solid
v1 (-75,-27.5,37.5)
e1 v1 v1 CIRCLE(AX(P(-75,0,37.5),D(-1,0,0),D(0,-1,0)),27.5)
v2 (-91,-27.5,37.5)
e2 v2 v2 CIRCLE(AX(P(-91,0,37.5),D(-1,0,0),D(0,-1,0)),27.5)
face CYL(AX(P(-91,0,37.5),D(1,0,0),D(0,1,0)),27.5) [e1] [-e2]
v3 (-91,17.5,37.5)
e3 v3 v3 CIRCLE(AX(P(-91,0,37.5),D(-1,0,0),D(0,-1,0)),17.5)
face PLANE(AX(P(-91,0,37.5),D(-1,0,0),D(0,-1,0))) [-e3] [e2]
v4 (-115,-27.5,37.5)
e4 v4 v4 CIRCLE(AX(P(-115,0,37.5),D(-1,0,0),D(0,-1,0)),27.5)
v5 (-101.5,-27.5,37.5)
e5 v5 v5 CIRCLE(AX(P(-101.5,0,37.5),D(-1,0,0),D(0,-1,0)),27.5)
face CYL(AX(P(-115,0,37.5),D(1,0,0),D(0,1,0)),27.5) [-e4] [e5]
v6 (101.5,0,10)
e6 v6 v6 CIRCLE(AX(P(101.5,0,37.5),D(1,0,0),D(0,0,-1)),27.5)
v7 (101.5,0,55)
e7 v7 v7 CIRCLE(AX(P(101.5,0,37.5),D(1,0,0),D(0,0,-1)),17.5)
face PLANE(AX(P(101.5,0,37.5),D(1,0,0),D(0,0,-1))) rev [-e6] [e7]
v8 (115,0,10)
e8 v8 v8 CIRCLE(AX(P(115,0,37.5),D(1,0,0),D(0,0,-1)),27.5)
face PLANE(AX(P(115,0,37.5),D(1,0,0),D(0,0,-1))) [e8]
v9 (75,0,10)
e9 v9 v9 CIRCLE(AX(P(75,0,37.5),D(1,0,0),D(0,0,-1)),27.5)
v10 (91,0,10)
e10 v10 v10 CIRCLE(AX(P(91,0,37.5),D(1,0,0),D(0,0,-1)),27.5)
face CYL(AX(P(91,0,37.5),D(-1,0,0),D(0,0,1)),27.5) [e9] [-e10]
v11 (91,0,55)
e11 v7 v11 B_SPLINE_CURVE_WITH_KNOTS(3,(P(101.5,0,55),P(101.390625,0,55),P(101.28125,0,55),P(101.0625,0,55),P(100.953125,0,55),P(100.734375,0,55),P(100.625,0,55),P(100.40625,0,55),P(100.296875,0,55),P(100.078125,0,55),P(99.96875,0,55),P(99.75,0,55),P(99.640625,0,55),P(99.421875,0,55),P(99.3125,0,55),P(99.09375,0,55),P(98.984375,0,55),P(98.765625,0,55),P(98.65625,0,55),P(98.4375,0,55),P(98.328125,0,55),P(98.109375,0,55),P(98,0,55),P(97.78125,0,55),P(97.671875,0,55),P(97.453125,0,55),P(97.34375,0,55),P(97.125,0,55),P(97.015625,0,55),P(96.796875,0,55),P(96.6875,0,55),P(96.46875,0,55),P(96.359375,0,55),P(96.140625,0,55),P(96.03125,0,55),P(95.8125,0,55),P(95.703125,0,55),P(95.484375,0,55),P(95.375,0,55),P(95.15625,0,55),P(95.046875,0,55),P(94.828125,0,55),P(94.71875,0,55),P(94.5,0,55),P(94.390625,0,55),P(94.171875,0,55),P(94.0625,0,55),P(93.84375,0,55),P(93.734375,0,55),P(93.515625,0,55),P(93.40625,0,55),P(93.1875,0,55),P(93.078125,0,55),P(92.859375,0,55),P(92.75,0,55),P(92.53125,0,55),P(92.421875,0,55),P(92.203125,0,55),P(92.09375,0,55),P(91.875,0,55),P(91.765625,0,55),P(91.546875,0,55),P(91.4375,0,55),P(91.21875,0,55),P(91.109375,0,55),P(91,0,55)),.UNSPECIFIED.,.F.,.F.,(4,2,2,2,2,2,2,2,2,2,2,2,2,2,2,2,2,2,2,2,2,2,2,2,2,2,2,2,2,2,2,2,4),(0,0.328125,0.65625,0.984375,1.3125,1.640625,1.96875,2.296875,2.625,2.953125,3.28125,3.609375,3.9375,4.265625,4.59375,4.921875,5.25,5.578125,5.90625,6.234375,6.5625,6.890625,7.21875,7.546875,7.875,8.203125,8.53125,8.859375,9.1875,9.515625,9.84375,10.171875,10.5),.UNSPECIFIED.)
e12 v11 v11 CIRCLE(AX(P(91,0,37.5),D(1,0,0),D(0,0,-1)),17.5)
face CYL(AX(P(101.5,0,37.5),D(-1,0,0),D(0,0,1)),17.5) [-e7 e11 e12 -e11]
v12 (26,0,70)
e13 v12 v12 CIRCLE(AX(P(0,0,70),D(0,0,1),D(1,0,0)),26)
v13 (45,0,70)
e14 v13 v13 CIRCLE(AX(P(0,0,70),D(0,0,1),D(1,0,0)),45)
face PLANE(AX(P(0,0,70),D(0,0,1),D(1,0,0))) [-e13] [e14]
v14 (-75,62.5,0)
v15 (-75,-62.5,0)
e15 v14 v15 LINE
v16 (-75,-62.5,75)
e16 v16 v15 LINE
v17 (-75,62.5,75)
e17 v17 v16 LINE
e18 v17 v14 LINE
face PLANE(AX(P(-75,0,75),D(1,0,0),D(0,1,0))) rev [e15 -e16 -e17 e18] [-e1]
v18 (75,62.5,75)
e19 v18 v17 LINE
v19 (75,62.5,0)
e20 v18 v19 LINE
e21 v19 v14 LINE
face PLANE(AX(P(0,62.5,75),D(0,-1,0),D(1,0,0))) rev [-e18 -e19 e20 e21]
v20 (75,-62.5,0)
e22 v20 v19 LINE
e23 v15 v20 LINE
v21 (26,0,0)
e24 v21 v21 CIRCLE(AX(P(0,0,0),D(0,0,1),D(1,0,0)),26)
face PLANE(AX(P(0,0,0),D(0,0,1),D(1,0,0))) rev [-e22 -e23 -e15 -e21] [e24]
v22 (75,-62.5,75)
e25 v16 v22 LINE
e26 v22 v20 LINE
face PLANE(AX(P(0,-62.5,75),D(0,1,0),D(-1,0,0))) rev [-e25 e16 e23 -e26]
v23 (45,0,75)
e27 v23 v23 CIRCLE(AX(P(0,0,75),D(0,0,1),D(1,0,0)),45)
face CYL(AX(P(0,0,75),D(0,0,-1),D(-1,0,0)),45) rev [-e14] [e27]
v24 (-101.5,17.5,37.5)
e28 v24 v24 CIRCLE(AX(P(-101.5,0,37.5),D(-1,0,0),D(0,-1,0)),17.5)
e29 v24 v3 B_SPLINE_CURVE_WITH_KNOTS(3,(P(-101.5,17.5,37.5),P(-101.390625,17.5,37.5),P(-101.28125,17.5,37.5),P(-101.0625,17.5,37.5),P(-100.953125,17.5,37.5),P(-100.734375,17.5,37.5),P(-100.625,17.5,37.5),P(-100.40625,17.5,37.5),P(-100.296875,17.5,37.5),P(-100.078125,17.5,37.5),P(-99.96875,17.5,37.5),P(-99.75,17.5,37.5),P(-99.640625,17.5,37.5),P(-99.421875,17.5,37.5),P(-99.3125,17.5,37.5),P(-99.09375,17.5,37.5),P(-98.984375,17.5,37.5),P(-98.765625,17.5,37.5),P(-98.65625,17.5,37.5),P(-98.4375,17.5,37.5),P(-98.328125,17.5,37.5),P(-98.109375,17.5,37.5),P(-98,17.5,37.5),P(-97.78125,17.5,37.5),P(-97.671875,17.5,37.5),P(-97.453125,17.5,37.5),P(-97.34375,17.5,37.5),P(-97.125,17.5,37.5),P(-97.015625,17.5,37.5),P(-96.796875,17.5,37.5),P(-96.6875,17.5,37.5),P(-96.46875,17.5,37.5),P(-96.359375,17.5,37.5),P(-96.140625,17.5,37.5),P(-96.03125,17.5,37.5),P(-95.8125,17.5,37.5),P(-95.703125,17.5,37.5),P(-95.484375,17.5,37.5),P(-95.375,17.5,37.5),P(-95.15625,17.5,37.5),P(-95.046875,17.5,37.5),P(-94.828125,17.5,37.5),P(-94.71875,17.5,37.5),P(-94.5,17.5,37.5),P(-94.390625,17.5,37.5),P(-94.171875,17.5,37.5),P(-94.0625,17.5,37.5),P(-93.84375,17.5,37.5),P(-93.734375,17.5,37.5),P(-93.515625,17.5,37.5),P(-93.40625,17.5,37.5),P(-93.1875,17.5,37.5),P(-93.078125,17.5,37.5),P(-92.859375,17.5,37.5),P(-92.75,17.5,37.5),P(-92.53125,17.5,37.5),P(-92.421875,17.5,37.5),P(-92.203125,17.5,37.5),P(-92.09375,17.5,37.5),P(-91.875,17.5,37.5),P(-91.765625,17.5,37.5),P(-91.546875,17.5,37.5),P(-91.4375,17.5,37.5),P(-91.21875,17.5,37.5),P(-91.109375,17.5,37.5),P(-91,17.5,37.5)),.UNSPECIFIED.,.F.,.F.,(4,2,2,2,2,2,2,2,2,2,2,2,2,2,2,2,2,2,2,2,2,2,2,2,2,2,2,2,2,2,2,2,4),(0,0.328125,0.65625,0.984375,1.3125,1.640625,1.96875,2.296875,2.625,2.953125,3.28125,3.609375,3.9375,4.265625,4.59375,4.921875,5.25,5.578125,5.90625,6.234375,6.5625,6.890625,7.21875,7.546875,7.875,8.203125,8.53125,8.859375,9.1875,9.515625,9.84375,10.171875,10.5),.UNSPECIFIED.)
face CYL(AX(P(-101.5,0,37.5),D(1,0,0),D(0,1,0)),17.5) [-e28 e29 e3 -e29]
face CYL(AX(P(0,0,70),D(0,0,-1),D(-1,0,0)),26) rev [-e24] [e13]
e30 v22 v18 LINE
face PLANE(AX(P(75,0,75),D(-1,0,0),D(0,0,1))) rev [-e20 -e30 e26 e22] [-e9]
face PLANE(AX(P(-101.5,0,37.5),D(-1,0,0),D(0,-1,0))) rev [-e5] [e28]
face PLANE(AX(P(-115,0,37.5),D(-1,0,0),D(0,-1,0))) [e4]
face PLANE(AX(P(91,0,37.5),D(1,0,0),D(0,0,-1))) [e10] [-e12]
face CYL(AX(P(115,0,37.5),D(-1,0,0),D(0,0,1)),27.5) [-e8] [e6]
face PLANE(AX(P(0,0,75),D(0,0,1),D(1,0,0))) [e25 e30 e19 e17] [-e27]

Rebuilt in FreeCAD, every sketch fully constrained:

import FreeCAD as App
import Part
import Sketcher

V = App.Vector

doc = App.newDocument("Part")
body = doc.addObject("PartDesign::Body", "Body")

sketch1 = body.newObject("Sketcher::SketchObject", "Sketch")
sketch1.AttachmentSupport = (doc.getObject("XY_Plane"), [""])
sketch1.MapMode = "FlatFace"
sketch1.addGeometry([
    Part.LineSegment(V(-75, 62, 0), V(-75, -62, 0)),
    Part.LineSegment(V(-75, -62, 0), V(75, -62, 0)),
    Part.LineSegment(V(75, -62, 0), V(75, 62, 0)),
    Part.LineSegment(V(75, 62, 0), V(-75, 62, 0)),
    Part.Circle(V(0, 0, 0), V(0, 0, 1), 45),
], False)
sketch1.addConstraint([
    Sketcher.Constraint("Coincident", 0, 2, 1, 1),
    Sketcher.Constraint("Coincident", 1, 2, 2, 1),
    Sketcher.Constraint("Coincident", 2, 2, 3, 1),
    Sketcher.Constraint("Coincident", 3, 2, 0, 1),
    Sketcher.Constraint("Vertical", 0),
    Sketcher.Constraint("Horizontal", 1),
    Sketcher.Constraint("Vertical", 2),
    Sketcher.Constraint("Horizontal", 3),
    Sketcher.Constraint("Coincident", 4, 3, -1, 1),
    Sketcher.Constraint("Symmetric", 0, 2, 2, 2, -1, 1),
    Sketcher.Constraint("Diameter", 4, 90.0),
    Sketcher.Constraint("DistanceX", 1, 1, 1, 2, 150.0),
    Sketcher.Constraint("DistanceY", 0, 2, 0, 1, 125.0),
])
pad1 = body.newObject("PartDesign::Pad", "Pad")
pad1.Profile = sketch1
pad1.Length = 75

sketch2 = body.newObject("Sketcher::SketchObject", "Sketch001")
sketch2.AttachmentSupport = (doc.getObject("XY_Plane"), [""])
sketch2.MapMode = "FlatFace"
sketch2.addGeometry([
    Part.Circle(V(0, 0, 0), V(0, 0, 1), 45),
    Part.Circle(V(0, 0, 0), V(0, 0, 1), 26),
], False)
sketch2.addConstraint([
    Sketcher.Constraint("Coincident", 0, 3, -1, 1),
    Sketcher.Constraint("Coincident", 1, 3, -1, 1),
    Sketcher.Constraint("Diameter", 0, 90.0),
    Sketcher.Constraint("Diameter", 1, 52.0),
])
pad2 = body.newObject("PartDesign::Pad", "Pad001")
pad2.Profile = sketch2
pad2.Length = 70

sketch3 = body.newObject("Sketcher::SketchObject", "Sketch002")
sketch3.AttachmentSupport = (doc.getObject("YZ_Plane"), [""])
sketch3.MapMode = "FlatFace"
sketch3.AttachmentOffset = App.Placement(V(0, 0, 75), App.Rotation())
sketch3.addGeometry(Part.Circle(V(0, 38, 0), V(0, 0, 1), 28), False)
sketch3.addConstraint([
    Sketcher.Constraint("PointOnObject", 0, 3, -2),
    Sketcher.Constraint("Diameter", 0, 55.0),
    Sketcher.Constraint("DistanceY", -1, 1, 0, 3, 37.5),
])
pad3 = body.newObject("PartDesign::Pad", "Pad002")
pad3.Profile = sketch3
pad3.Length = 16

sketch4 = body.newObject("Sketcher::SketchObject", "Sketch003")
sketch4.AttachmentSupport = (doc.getObject("YZ_Plane"), [""])
sketch4.MapMode = "FlatFace"
sketch4.AttachmentOffset = App.Placement(V(0, 0, 91), App.Rotation())
sketch4.addGeometry(Part.Circle(V(0, 38, 0), V(0, 0, 1), 18), False)
sketch4.addConstraint([
    Sketcher.Constraint("PointOnObject", 0, 3, -2),
    Sketcher.Constraint("Diameter", 0, 35.0),
    Sketcher.Constraint("DistanceY", -1, 1, 0, 3, 37.5),
])
pad4 = body.newObject("PartDesign::Pad", "Pad003")
pad4.Profile = sketch4
pad4.Length = 10.5

sketch5 = body.newObject("Sketcher::SketchObject", "Sketch004")
sketch5.AttachmentSupport = (doc.getObject("YZ_Plane"), [""])
sketch5.MapMode = "FlatFace"
sketch5.AttachmentOffset = App.Placement(V(0, 0, 101.5), App.Rotation())
sketch5.addGeometry(Part.Circle(V(0, 38, 0), V(0, 0, 1), 28), False)
sketch5.addConstraint([
    Sketcher.Constraint("PointOnObject", 0, 3, -2),
    Sketcher.Constraint("Diameter", 0, 55.0),
    Sketcher.Constraint("DistanceY", -1, 1, 0, 3, 37.5),
])
pad5 = body.newObject("PartDesign::Pad", "Pad004")
pad5.Profile = sketch5
pad5.Length = 13.5

sketch6 = body.newObject("Sketcher::SketchObject", "Sketch005")
sketch6.AttachmentSupport = (doc.getObject("YZ_Plane"), [""])
sketch6.MapMode = "FlatFace"
sketch6.AttachmentOffset = App.Placement(V(0, 0, -91), App.Rotation())
sketch6.addGeometry(Part.Circle(V(0, 38, 0), V(0, 0, 1), 28), False)
sketch6.addConstraint([
    Sketcher.Constraint("PointOnObject", 0, 3, -2),
    Sketcher.Constraint("Diameter", 0, 55.0),
    Sketcher.Constraint("DistanceY", -1, 1, 0, 3, 37.5),
])
pad6 = body.newObject("PartDesign::Pad", "Pad005")
pad6.Profile = sketch6
pad6.Length = 16

sketch7 = body.newObject("Sketcher::SketchObject", "Sketch006")
sketch7.AttachmentSupport = (doc.getObject("YZ_Plane"), [""])
sketch7.MapMode = "FlatFace"
sketch7.AttachmentOffset = App.Placement(V(0, 0, -101.5), App.Rotation())
sketch7.addGeometry(Part.Circle(V(0, 38, 0), V(0, 0, 1), 18), False)
sketch7.addConstraint([
    Sketcher.Constraint("PointOnObject", 0, 3, -2),
    Sketcher.Constraint("Diameter", 0, 35.0),
    Sketcher.Constraint("DistanceY", -1, 1, 0, 3, 37.5),
])
pad7 = body.newObject("PartDesign::Pad", "Pad006")
pad7.Profile = sketch7
pad7.Length = 10.5

sketch8 = body.newObject("Sketcher::SketchObject", "Sketch007")
sketch8.AttachmentSupport = (doc.getObject("YZ_Plane"), [""])
sketch8.MapMode = "FlatFace"
sketch8.AttachmentOffset = App.Placement(V(0, 0, -115), App.Rotation())
sketch8.addGeometry(Part.Circle(V(0, 38, 0), V(0, 0, 1), 28), False)
sketch8.addConstraint([
    Sketcher.Constraint("PointOnObject", 0, 3, -2),
    Sketcher.Constraint("Diameter", 0, 55.0),
    Sketcher.Constraint("DistanceY", -1, 1, 0, 3, 37.5),
])
pad8 = body.newObject("PartDesign::Pad", "Pad007")
pad8.Profile = sketch8
pad8.Length = 13.5

doc.recompute()
